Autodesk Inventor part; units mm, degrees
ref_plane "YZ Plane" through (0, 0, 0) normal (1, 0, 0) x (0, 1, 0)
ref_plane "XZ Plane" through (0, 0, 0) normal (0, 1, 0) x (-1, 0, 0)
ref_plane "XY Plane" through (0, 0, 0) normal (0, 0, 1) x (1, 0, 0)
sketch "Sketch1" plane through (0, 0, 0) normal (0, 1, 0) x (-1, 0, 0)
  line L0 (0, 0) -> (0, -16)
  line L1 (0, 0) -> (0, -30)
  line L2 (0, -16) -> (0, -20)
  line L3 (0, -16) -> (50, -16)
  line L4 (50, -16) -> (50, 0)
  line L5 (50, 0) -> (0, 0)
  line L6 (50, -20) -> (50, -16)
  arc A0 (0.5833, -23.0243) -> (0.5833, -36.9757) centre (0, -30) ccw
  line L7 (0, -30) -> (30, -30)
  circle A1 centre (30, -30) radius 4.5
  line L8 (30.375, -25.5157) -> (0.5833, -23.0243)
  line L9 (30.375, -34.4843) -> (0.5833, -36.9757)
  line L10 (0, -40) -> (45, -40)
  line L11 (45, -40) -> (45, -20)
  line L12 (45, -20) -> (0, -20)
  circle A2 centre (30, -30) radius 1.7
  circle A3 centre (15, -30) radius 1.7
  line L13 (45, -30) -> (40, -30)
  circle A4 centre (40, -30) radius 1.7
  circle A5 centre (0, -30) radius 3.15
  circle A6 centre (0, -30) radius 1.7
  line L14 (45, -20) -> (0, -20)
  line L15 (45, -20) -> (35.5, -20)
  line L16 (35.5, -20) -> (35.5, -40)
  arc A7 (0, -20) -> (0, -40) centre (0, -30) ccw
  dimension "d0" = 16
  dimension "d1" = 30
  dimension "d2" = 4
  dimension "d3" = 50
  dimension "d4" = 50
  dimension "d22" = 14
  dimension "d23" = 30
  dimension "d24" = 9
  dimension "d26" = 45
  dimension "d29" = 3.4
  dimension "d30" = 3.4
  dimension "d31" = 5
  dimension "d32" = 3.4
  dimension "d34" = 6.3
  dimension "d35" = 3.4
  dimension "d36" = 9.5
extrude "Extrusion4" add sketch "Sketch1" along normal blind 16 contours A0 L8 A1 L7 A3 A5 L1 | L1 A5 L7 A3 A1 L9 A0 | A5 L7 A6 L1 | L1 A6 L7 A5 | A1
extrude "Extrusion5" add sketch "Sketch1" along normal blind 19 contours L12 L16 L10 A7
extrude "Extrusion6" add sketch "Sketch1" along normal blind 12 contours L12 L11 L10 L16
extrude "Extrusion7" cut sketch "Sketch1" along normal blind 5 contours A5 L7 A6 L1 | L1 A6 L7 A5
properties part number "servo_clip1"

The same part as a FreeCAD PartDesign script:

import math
import FreeCAD as App
import Part
import Sketcher

V = App.Vector

doc = App.newDocument("Part")
body = doc.addObject("PartDesign::Body", "Body")

sketch1 = body.newObject("Sketcher::SketchObject", "Sketch")
sketch1.AttachmentSupport = (doc.getObject("XZ_Plane"), [""])
sketch1.MapMode = "FlatFace"
sketch1.addGeometry([
    Part.ArcOfCircle(Part.Circle(V(0, -30, 0), V(0, 0, 1), 7), math.radians(-95), math.radians(95)),
    Part.LineSegment(V(-0.6, -37, 0), V(-30.4, -34.5, 0)),
    Part.ArcOfCircle(Part.Circle(V(-30, -30, 0), V(0, 0, 1), 4.5), math.radians(95), math.radians(265)),
    Part.LineSegment(V(-30.4, -25.5, 0), V(-0.6, -23, 0)),
    Part.Circle(V(-15, -30, 0), V(0, 0, 1), 1.7),
    Part.Circle(V(-30, -30, 0), V(0, 0, 1), 1.7),
    Part.Circle(V(0, -30, 0), V(0, 0, 1), 1.7),
], False)
sketch1.addConstraint([
    Sketcher.Constraint("Tangent", 0, 1, 1, 1),
    Sketcher.Constraint("Tangent", 1, 2, 2, 2),
    Sketcher.Constraint("Tangent", 2, 1, 3, 1),
    Sketcher.Constraint("Tangent", 3, 2, 0, 2),
    Sketcher.Constraint("Coincident", 5, 3, 2, 3),
    Sketcher.Constraint("Coincident", 6, 3, 0, 3),
    Sketcher.Constraint("Equal", 4, 5),
    Sketcher.Constraint("Equal", 5, 6),
    Sketcher.Constraint("PointOnObject", 0, 3, -2),
    Sketcher.Constraint("Horizontal", 0, 3, 2, 3),
    Sketcher.Constraint("Horizontal", 2, 3, 4, 3),
    Sketcher.Constraint("Radius", 0, 7.0),
    Sketcher.Constraint("Diameter", 4, 3.4),
    Sketcher.Constraint("Radius", 2, 4.5),
    Sketcher.Constraint("DistanceY", 0, 3, -1, 1, 30.0),
    Sketcher.Constraint("DistanceX", 2, 3, -1, 1, 30.0),
    Sketcher.Constraint("DistanceX", 4, 3, -1, 1, 15.0),
])
pad1 = body.newObject("PartDesign::Pad", "Pad")
pad1.Profile = sketch1
pad1.Length = 16
pad1.Reversed = True

sketch2 = body.newObject("Sketcher::SketchObject", "Sketch001")
sketch2.AttachmentSupport = (doc.getObject("XZ_Plane"), [""])
sketch2.MapMode = "FlatFace"
sketch2.addGeometry([
    Part.LineSegment(V(-35.5, -20, 0), V(0, -20, 0)),
    Part.ArcOfCircle(Part.Circle(V(0, -30, 0), V(0, 0, 1), 10), math.radians(-90), math.radians(90)),
    Part.LineSegment(V(0, -40, 0), V(-35.5, -40, 0)),
    Part.LineSegment(V(-35.5, -40, 0), V(-35.5, -20, 0)),
    Part.ArcOfCircle(Part.Circle(V(0, -30, 0), V(0, 0, 1), 7), math.radians(-95), math.radians(90)),
    Part.ArcOfCircle(Part.Circle(V(0, -30, 0), V(0, 0, 1), 7), math.radians(90), math.radians(94.78)),
    Part.LineSegment(V(-0.6, -23, 0), V(-30.4, -25.5, 0)),
    Part.ArcOfCircle(Part.Circle(V(-30, -30, 0), V(0, 0, 1), 4.5), math.radians(95), math.radians(265)),
    Part.LineSegment(V(-30.4, -34.5, 0), V(-0.6, -37, 0)),
], False)
sketch2.addConstraint([
    Sketcher.Constraint("Tangent", 0, 2, 1, 2),
    Sketcher.Constraint("Tangent", 1, 1, 2, 1),
    Sketcher.Constraint("Coincident", 2, 2, 3, 1),
    Sketcher.Constraint("Coincident", 3, 2, 0, 1),
    Sketcher.Constraint("Tangent", 4, 2, 5, 1),
    Sketcher.Constraint("Tangent", 5, 2, 6, 1),
    Sketcher.Constraint("Tangent", 6, 2, 7, 1),
    Sketcher.Constraint("Tangent", 7, 2, 8, 1),
    Sketcher.Constraint("Tangent", 8, 2, 4, 1),
    Sketcher.Constraint("Horizontal", 0),
    Sketcher.Constraint("Horizontal", 2),
    Sketcher.Constraint("Vertical", 3),
    Sketcher.Constraint("Coincident", 4, 3, 1, 3),
    Sketcher.Constraint("Equal", 4, 5),
    Sketcher.Constraint("PointOnObject", 1, 3, -2),
    Sketcher.Constraint("PointOnObject", 4, 2, -2),
    Sketcher.Constraint("Horizontal", 5, 3, 7, 3),
    Sketcher.Constraint("Radius", 4, 7.0),
    Sketcher.Constraint("Radius", 7, 4.5),
    Sketcher.Constraint("DistanceY", 1, 3, -1, 1, 30.0),
    Sketcher.Constraint("DistanceX", 7, 3, -1, 1, 30.0),
    Sketcher.Constraint("Radius", 1, 10.0),
    Sketcher.Constraint("DistanceX", 0, 1, 0, 2, 35.5),
])
pad2 = body.newObject("PartDesign::Pad", "Pad001")
pad2.Profile = sketch2
pad2.Length = 19
pad2.Reversed = True

sketch3 = body.newObject("Sketcher::SketchObject", "Sketch002")
sketch3.AttachmentSupport = (doc.getObject("XZ_Plane"), [""])
sketch3.MapMode = "FlatFace"
sketch3.addGeometry([
    Part.LineSegment(V(-45, -20, 0), V(-35.5, -20, 0)),
    Part.LineSegment(V(-35.5, -20, 0), V(-35.5, -40, 0)),
    Part.LineSegment(V(-35.5, -40, 0), V(-45, -40, 0)),
    Part.LineSegment(V(-45, -40, 0), V(-45, -30, 0)),
    Part.LineSegment(V(-45, -30, 0), V(-45, -20, 0)),
    Part.Circle(V(-40, -30, 0), V(0, 0, 1), 1.7),
], False)
sketch3.addConstraint([
    Sketcher.Constraint("Coincident", 0, 2, 1, 1),
    Sketcher.Constraint("Coincident", 1, 2, 2, 1),
    Sketcher.Constraint("Coincident", 2, 2, 3, 1),
    Sketcher.Constraint("Coincident", 3, 2, 4, 1),
    Sketcher.Constraint("Coincident", 4, 2, 0, 1),
    Sketcher.Constraint("Horizontal", 0),
    Sketcher.Constraint("Vertical", 1),
    Sketcher.Constraint("Horizontal", 2),
    Sketcher.Constraint("Vertical", 3),
    Sketcher.Constraint("Vertical", 4),
    Sketcher.Constraint("Horizontal", 5, 3, 3, 2),
    Sketcher.Constraint("Equal", 3, 4),
    Sketcher.Constraint("Diameter", 5, 3.4),
    Sketcher.Constraint("DistanceX", 0, 1, 0, 2, 9.5),
    Sketcher.Constraint("DistanceY", 5, 3, -1, 1, 30.0),
    Sketcher.Constraint("DistanceX", 2, 2, -1, 1, 45.0),
    Sketcher.Constraint("DistanceX", 2, 2, 5, 3, 5.0),
    Sketcher.Constraint("DistanceY", 1, 2, 1, 1, 20.0),
])
pad3 = body.newObject("PartDesign::Pad", "Pad002")
pad3.Profile = sketch3
pad3.Length = 12
pad3.Reversed = True

sketch4 = body.newObject("Sketcher::SketchObject", "Sketch003")
sketch4.AttachmentSupport = (doc.getObject("XZ_Plane"), [""])
sketch4.MapMode = "FlatFace"
sketch4.addGeometry([
    Part.Circle(V(0, -30, 0), V(0, 0, 1), 3.1),
    Part.Circle(V(0, -30, 0), V(0, 0, 1), 1.7),
], False)
sketch4.addConstraint([
    Sketcher.Constraint("Coincident", 1, 3, 0, 3),
    Sketcher.Constraint("PointOnObject", 0, 3, -2),
    Sketcher.Constraint("Diameter", 0, 6.3),
    Sketcher.Constraint("Diameter", 1, 3.4),
    Sketcher.Constraint("DistanceY", 0, 3, -1, 1, 30.0),
])
pocket1 = body.newObject("PartDesign::Pocket", "Pocket")
pocket1.Profile = sketch4
pocket1.Length = 5

doc.recompute()
